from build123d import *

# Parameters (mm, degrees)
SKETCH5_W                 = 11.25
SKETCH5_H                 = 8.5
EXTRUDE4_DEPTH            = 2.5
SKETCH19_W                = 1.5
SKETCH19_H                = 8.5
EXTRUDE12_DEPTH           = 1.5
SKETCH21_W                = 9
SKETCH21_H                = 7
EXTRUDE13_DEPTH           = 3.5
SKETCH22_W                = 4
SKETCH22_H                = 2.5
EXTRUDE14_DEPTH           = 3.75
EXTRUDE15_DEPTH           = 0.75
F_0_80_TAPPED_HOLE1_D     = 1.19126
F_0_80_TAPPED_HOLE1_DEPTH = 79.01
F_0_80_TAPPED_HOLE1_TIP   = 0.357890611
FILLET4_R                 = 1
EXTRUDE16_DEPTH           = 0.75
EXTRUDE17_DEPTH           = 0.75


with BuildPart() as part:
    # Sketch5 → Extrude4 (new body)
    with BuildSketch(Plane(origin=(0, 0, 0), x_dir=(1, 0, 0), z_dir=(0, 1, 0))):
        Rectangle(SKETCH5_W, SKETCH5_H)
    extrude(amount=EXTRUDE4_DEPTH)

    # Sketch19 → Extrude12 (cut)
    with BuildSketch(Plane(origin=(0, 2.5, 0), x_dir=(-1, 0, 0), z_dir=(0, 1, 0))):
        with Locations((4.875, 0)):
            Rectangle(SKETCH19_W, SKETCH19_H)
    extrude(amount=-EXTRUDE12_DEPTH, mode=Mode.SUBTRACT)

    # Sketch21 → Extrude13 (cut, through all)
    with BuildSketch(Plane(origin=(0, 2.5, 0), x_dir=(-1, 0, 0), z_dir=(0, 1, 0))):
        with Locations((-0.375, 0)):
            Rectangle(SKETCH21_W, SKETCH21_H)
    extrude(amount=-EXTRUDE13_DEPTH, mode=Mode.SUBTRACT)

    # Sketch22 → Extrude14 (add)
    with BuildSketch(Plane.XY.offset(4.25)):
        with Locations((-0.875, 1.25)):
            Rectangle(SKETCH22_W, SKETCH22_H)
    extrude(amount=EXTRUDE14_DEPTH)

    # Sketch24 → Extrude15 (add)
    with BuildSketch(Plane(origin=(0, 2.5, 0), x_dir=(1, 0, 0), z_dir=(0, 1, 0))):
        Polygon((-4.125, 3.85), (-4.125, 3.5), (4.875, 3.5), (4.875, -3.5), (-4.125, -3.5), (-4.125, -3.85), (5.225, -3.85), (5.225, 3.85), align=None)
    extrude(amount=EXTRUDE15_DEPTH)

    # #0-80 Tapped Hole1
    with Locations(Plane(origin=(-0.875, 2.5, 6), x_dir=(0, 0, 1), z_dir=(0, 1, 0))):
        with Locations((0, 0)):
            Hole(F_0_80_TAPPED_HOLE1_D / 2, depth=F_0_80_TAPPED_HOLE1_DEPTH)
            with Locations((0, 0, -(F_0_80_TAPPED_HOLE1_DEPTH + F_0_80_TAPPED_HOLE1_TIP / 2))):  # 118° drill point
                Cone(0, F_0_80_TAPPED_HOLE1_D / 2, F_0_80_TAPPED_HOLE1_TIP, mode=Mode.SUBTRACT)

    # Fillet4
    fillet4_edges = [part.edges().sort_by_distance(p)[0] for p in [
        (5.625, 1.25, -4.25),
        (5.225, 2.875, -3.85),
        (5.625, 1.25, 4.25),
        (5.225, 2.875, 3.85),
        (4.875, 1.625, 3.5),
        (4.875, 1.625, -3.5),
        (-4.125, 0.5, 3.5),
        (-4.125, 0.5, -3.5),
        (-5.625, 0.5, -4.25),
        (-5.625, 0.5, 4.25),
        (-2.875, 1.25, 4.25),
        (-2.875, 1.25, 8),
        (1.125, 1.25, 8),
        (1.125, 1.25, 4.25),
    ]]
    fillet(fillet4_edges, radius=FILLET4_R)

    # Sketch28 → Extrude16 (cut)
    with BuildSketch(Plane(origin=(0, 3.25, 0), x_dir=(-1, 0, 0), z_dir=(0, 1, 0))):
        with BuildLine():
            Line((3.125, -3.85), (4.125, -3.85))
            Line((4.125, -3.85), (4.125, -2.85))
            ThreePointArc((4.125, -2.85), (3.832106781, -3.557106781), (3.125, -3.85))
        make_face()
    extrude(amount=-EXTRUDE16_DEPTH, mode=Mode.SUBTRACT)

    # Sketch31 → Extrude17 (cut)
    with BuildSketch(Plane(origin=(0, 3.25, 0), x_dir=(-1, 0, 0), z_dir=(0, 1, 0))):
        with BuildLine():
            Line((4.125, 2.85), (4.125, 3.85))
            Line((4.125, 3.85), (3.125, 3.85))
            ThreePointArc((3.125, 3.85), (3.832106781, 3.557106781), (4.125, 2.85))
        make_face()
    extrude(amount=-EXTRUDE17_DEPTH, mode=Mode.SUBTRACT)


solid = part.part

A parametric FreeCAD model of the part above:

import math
import FreeCAD as App
import Part
import Sketcher
from FreeCAD import Vector


def edges_at(feature, points):
    """Names of the edges that pass closest to the given points."""
    edges = feature.Shape.Edges
    near = lambda p: min(range(len(edges)), key=lambda i: edges[i].distToShape(Part.Vertex(*p))[0])
    return sorted({f"Edge{near(p) + 1}" for p in points})

doc = App.newDocument("Part")
body = doc.addObject("PartDesign::Body", "Body")

# Sketch on XZ plane
sketch1 = body.newObject("Sketcher::SketchObject", "Sketch")
sketch1.AttachmentSupport = (doc.getObject("XZ_Plane"), [""])
sketch1.MapMode = "FlatFace"
sketch1.addGeometry(Part.LineSegment(Vector(-6, -4, 0), Vector(-6, 4, 0)), False)
sketch1.addGeometry(Part.LineSegment(Vector(-6, 4, 0), Vector(6, 4, 0)), False)
sketch1.addGeometry(Part.LineSegment(Vector(6, 4, 0), Vector(6, -4, 0)), False)
sketch1.addGeometry(Part.LineSegment(Vector(6, -4, 0), Vector(-6, -4, 0)), False)
sketch1.addConstraint(Sketcher.Constraint("Coincident", 0, 2, 1, 1))
sketch1.addConstraint(Sketcher.Constraint("Coincident", 1, 2, 2, 1))
sketch1.addConstraint(Sketcher.Constraint("Coincident", 2, 2, 3, 1))
sketch1.addConstraint(Sketcher.Constraint("Coincident", 3, 2, 0, 1))
sketch1.addConstraint(Sketcher.Constraint("Vertical", 0))
sketch1.addConstraint(Sketcher.Constraint("Horizontal", 1))
sketch1.addConstraint(Sketcher.Constraint("Vertical", 2))
sketch1.addConstraint(Sketcher.Constraint("Horizontal", 3))
sketch1.addConstraint(Sketcher.Constraint("Symmetric", 0, 2, 2, 2, -1, 1))
sketch1.addConstraint(Sketcher.Constraint("DistanceY", 0, 1, 0, 2, 8.5))
sketch1.addConstraint(Sketcher.Constraint("DistanceX", 1, 1, 1, 2, 11.25))
pad1 = body.newObject("PartDesign::Pad", "Pad")
pad1.Profile = sketch1
pad1.Length = 2.5
pad1.Reversed = True

# Sketch on XZ plane
sketch2 = body.newObject("Sketcher::SketchObject", "Sketch001")
sketch2.AttachmentSupport = (doc.getObject("XZ_Plane"), [""])
sketch2.MapMode = "FlatFace"
sketch2.AttachmentOffset = App.Placement(Vector(0, 0, -2.5), App.Rotation())
sketch2.addGeometry(Part.LineSegment(Vector(-4.1, 4.2, 0), Vector(-4.1, -4.2, 0)), False)
sketch2.addGeometry(Part.LineSegment(Vector(-4.1, -4.2, 0), Vector(-5.6, -4.2, 0)), False)
sketch2.addGeometry(Part.LineSegment(Vector(-5.6, -4.2, 0), Vector(-5.6, 4.2, 0)), False)
sketch2.addGeometry(Part.LineSegment(Vector(-5.6, 4.2, 0), Vector(-4.1, 4.2, 0)), False)
sketch2.addConstraint(Sketcher.Constraint("Coincident", 0, 2, 1, 1))
sketch2.addConstraint(Sketcher.Constraint("Coincident", 1, 2, 2, 1))
sketch2.addConstraint(Sketcher.Constraint("Coincident", 2, 2, 3, 1))
sketch2.addConstraint(Sketcher.Constraint("Coincident", 3, 2, 0, 1))
sketch2.addConstraint(Sketcher.Constraint("Vertical", 0))
sketch2.addConstraint(Sketcher.Constraint("Horizontal", 1))
sketch2.addConstraint(Sketcher.Constraint("Vertical", 2))
sketch2.addConstraint(Sketcher.Constraint("Horizontal", 3))
sketch2.addConstraint(Sketcher.Constraint("DistanceX", 1, 2, 1, 1, 1.5))
sketch2.addConstraint(Sketcher.Constraint("DistanceY", 0, 2, 0, 1, 8.5))
sketch2.addConstraint(Sketcher.Constraint("DistanceY", 0, 2, -1, 1, 4.25))
sketch2.addConstraint(Sketcher.Constraint("DistanceX", 0, 2, -1, 1, 4.125))
pocket1 = body.newObject("PartDesign::Pocket", "Pocket")
pocket1.Profile = sketch2
pocket1.Length = 1.5
pocket1.Reversed = True

# Sketch on XZ plane
sketch3 = body.newObject("Sketcher::SketchObject", "Sketch002")
sketch3.AttachmentSupport = (doc.getObject("XZ_Plane"), [""])
sketch3.MapMode = "FlatFace"
sketch3.AttachmentOffset = App.Placement(Vector(0, 0, -2.5), App.Rotation())
sketch3.addGeometry(Part.LineSegment(Vector(5, 4, 0), Vector(5, -4, 0)), False)
sketch3.addGeometry(Part.LineSegment(Vector(5, -4, 0), Vector(-4, -4, 0)), False)
sketch3.addGeometry(Part.LineSegment(Vector(-4, -4, 0), Vector(-4, 4, 0)), False)
sketch3.addGeometry(Part.LineSegment(Vector(-4, 4, 0), Vector(5, 4, 0)), False)
sketch3.addConstraint(Sketcher.Constraint("Coincident", 0, 2, 1, 1))
sketch3.addConstraint(Sketcher.Constraint("Coincident", 1, 2, 2, 1))
sketch3.addConstraint(Sketcher.Constraint("Coincident", 2, 2, 3, 1))
sketch3.addConstraint(Sketcher.Constraint("Coincident", 3, 2, 0, 1))
sketch3.addConstraint(Sketcher.Constraint("Vertical", 0))
sketch3.addConstraint(Sketcher.Constraint("Horizontal", 1))
sketch3.addConstraint(Sketcher.Constraint("Vertical", 2))
sketch3.addConstraint(Sketcher.Constraint("Horizontal", 3))
sketch3.addConstraint(Sketcher.Constraint("DistanceX", 1, 2, 1, 1, 9.0))
sketch3.addConstraint(Sketcher.Constraint("DistanceY", 0, 2, 0, 1, 7.0))
sketch3.addConstraint(Sketcher.Constraint("DistanceY", 0, 2, -1, 1, 3.5))
sketch3.addConstraint(Sketcher.Constraint("DistanceX", -1, 1, 0, 2, 4.875))
pocket2 = body.newObject("PartDesign::Pocket", "Pocket001")
pocket2.Profile = sketch3
pocket2.Type = "ThroughAll"
pocket2.Reversed = True

# Sketch on XY plane
sketch4 = body.newObject("Sketcher::SketchObject", "Sketch003")
sketch4.AttachmentSupport = (doc.getObject("XY_Plane"), [""])
sketch4.MapMode = "FlatFace"
sketch4.AttachmentOffset = App.Placement(Vector(0, 0, 4.25), App.Rotation())
sketch4.addGeometry(Part.LineSegment(Vector(-2.9, 2.5, 0), Vector(-2.9, 0, 0)), False)
sketch4.addGeometry(Part.LineSegment(Vector(-2.9, 0, 0), Vector(1.1, 0, 0)), False)
sketch4.addGeometry(Part.LineSegment(Vector(1.1, 0, 0), Vector(1.1, 2.5, 0)), False)
sketch4.addGeometry(Part.LineSegment(Vector(1.1, 2.5, 0), Vector(-2.9, 2.5, 0)), False)
sketch4.addConstraint(Sketcher.Constraint("Coincident", 0, 2, 1, 1))
sketch4.addConstraint(Sketcher.Constraint("Coincident", 1, 2, 2, 1))
sketch4.addConstraint(Sketcher.Constraint("Coincident", 2, 2, 3, 1))
sketch4.addConstraint(Sketcher.Constraint("Coincident", 3, 2, 0, 1))
sketch4.addConstraint(Sketcher.Constraint("Vertical", 0))
sketch4.addConstraint(Sketcher.Constraint("Horizontal", 1))
sketch4.addConstraint(Sketcher.Constraint("Vertical", 2))
sketch4.addConstraint(Sketcher.Constraint("Horizontal", 3))
sketch4.addConstraint(Sketcher.Constraint("PointOnObject", 0, 2, -1))
sketch4.addConstraint(Sketcher.Constraint("DistanceX", 1, 1, 1, 2, 4.0))
sketch4.addConstraint(Sketcher.Constraint("DistanceY", 0, 2, 0, 1, 2.5))
sketch4.addConstraint(Sketcher.Constraint("DistanceX", 0, 2, -1, 1, 2.875))
pad2 = body.newObject("PartDesign::Pad", "Pad001")
pad2.Profile = sketch4
pad2.Length = 3.75

# Sketch on XZ plane
sketch5 = body.newObject("Sketcher::SketchObject", "Sketch004")
sketch5.AttachmentSupport = (doc.getObject("XZ_Plane"), [""])
sketch5.MapMode = "FlatFace"
sketch5.AttachmentOffset = App.Placement(Vector(0, 0, -2.5), App.Rotation())
sketch5.addGeometry(Part.LineSegment(Vector(-4.12, -3.85, 0), Vector(-4.12, -3.5, 0)), False)
sketch5.addGeometry(Part.LineSegment(Vector(-4.12, -3.5, 0), Vector(4.88, -3.5, 0)), False)
sketch5.addGeometry(Part.LineSegment(Vector(4.88, -3.5, 0), Vector(4.88, 3.5, 0)), False)
sketch5.addGeometry(Part.LineSegment(Vector(4.88, 3.5, 0), Vector(-4.12, 3.5, 0)), False)
sketch5.addGeometry(Part.LineSegment(Vector(-4.12, 3.5, 0), Vector(-4.12, 3.85, 0)), False)
sketch5.addGeometry(Part.LineSegment(Vector(-4.12, 3.85, 0), Vector(5.22, 3.85, 0)), False)
sketch5.addGeometry(Part.LineSegment(Vector(5.22, 3.85, 0), Vector(5.22, -3.85, 0)), False)
sketch5.addGeometry(Part.LineSegment(Vector(5.22, -3.85, 0), Vector(-4.12, -3.85, 0)), False)
sketch5.addConstraint(Sketcher.Constraint("Coincident", 0, 2, 1, 1))
sketch5.addConstraint(Sketcher.Constraint("Coincident", 1, 2, 2, 1))
sketch5.addConstraint(Sketcher.Constraint("Coincident", 2, 2, 3, 1))
sketch5.addConstraint(Sketcher.Constraint("Coincident", 3, 2, 4, 1))
sketch5.addConstraint(Sketcher.Constraint("Coincident", 4, 2, 5, 1))
sketch5.addConstraint(Sketcher.Constraint("Coincident", 5, 2, 6, 1))
sketch5.addConstraint(Sketcher.Constraint("Coincident", 6, 2, 7, 1))
sketch5.addConstraint(Sketcher.Constraint("Coincident", 7, 2, 0, 1))
sketch5.addConstraint(Sketcher.Constraint("Vertical", 0))
sketch5.addConstraint(Sketcher.Constraint("Horizontal", 1))
sketch5.addConstraint(Sketcher.Constraint("Vertical", 2))
sketch5.addConstraint(Sketcher.Constraint("Horizontal", 3))
sketch5.addConstraint(Sketcher.Constraint("Vertical", 4))
sketch5.addConstraint(Sketcher.Constraint("Horizontal", 5))
sketch5.addConstraint(Sketcher.Constraint("Vertical", 6))
sketch5.addConstraint(Sketcher.Constraint("Horizontal", 7))
sketch5.addConstraint(Sketcher.Constraint("Symmetric", 0, 2, 3, 2, -1))
sketch5.addConstraint(Sketcher.Constraint("Equal", 0, 4))
sketch5.addConstraint(Sketcher.Constraint("DistanceX", 1, 1, 1, 2, 9.0))
sketch5.addConstraint(Sketcher.Constraint("DistanceY", 2, 1, 2, 2, 7.0))
sketch5.addConstraint(Sketcher.Constraint("DistanceY", 6, 2, 6, 1, 7.7))
sketch5.addConstraint(Sketcher.Constraint("DistanceX", 5, 1, 5, 2, 9.35))
sketch5.addConstraint(Sketcher.Constraint("DistanceX", 0, 2, -1, 1, 4.125))
pad3 = body.newObject("PartDesign::Pad", "Pad002")
pad3.Profile = sketch5
pad3.Length = 0.75
pad3.Reversed = True

# Sketch on XZ plane
sketch6 = body.newObject("Sketcher::SketchObject", "Sketch005")
sketch6.AttachmentSupport = (doc.getObject("XZ_Plane"), [""])
sketch6.MapMode = "FlatFace"
sketch6.AttachmentOffset = App.Placement(Vector(0, 0, -2.5), App.Rotation())
sketch6.addGeometry(Part.Circle(Vector(-0.9, 6, 0), Vector(0, 0, 1), 0.6), False)
sketch6.addConstraint(Sketcher.Constraint("DistanceY", -1, 1, 0, 3, 6.0))
sketch6.addConstraint(Sketcher.Constraint("Diameter", 0, 1.19126))
sketch6.addConstraint(Sketcher.Constraint("DistanceX", 0, 3, -1, 1, 0.875))
doc.recompute()
hole = body.newObject("PartDesign::Hole", "Hole")
hole.Profile = sketch6
hole.ThreadType = "None"
hole.Diameter = 1.19126
hole.DepthType = "Dimension"
hole.Depth = 79.01
hole.DrillPoint = "Angled"
hole.DrillPointAngle = 118
hole.Reversed = True
doc.recompute()

fillet = body.newObject("PartDesign::Fillet", "Fillet")
fillet.Base = (hole, edges_at(hole, [
    (5.625, 1.25, -4.25),
    (5.225, 2.875, -3.85),
    (5.625, 1.25, 4.25),
    (5.225, 2.875, 3.85),
    (4.875, 1.625, 3.5),
    (4.875, 1.625, -3.5),
    (-4.125, 0.5, 3.5),
    (-4.125, 0.5, -3.5),
    (-5.625, 0.5, -4.25),
    (-5.625, 0.5, 4.25),
    (-2.875, 1.25, 4.25),
    (-2.875, 1.25, 8),
    (1.125, 1.25, 8),
    (1.125, 1.25, 4.25),
]))
fillet.Radius = 1

# Sketch on XZ plane
sketch7 = body.newObject("Sketcher::SketchObject", "Sketch006")
sketch7.AttachmentSupport = (doc.getObject("XZ_Plane"), [""])
sketch7.MapMode = "FlatFace"
sketch7.AttachmentOffset = App.Placement(Vector(0, 0, -3.25), App.Rotation())
sketch7.addGeometry(Part.LineSegment(Vector(-3.1, -3.9, 0), Vector(-4.1, -3.9, 0)), False)
sketch7.addGeometry(Part.LineSegment(Vector(-4.1, -3.9, 0), Vector(-4.1, -2.9, 0)), False)
sketch7.addGeometry(Part.ArcOfCircle(Part.Circle(Vector(-3.1, -2.8, 0), Vector(0, 0, 1), 1), math.radians(-180), math.radians(-90)), False)
sketch7.addConstraint(Sketcher.Constraint("Coincident", 0, 2, 1, 1))
sketch7.addConstraint(Sketcher.Constraint("Tangent", 1, 2, 2, 1))
sketch7.addConstraint(Sketcher.Constraint("Tangent", 2, 2, 0, 1))
sketch7.addConstraint(Sketcher.Constraint("Horizontal", 0))
sketch7.addConstraint(Sketcher.Constraint("Vertical", 1))
sketch7.addConstraint(Sketcher.Constraint("Radius", 2, 1.0))
sketch7.addConstraint(Sketcher.Constraint("DistanceY", 2, 3, -1, 1, 2.85))
sketch7.addConstraint(Sketcher.Constraint("DistanceX", 2, 3, -1, 1, 3.125))
pocket3 = body.newObject("PartDesign::Pocket", "Pocket002")
pocket3.Profile = sketch7
pocket3.Length = 0.75
pocket3.Reversed = True

# Sketch on XZ plane
sketch8 = body.newObject("Sketcher::SketchObject", "Sketch007")
sketch8.AttachmentSupport = (doc.getObject("XZ_Plane"), [""])
sketch8.MapMode = "FlatFace"
sketch8.AttachmentOffset = App.Placement(Vector(0, 0, -3.25), App.Rotation())
sketch8.addGeometry(Part.LineSegment(Vector(-4.1, 2.9, 0), Vector(-4.1, 3.9, 0)), False)
sketch8.addGeometry(Part.LineSegment(Vector(-4.1, 3.9, 0), Vector(-3.1, 3.9, 0)), False)
sketch8.addGeometry(Part.ArcOfCircle(Part.Circle(Vector(-3.1, 2.8, 0), Vector(0, 0, 1), 1), math.radians(90), math.radians(180)), False)
sketch8.addConstraint(Sketcher.Constraint("Coincident", 0, 2, 1, 1))
sketch8.addConstraint(Sketcher.Constraint("Tangent", 1, 2, 2, 1))
sketch8.addConstraint(Sketcher.Constraint("Tangent", 2, 2, 0, 1))
sketch8.addConstraint(Sketcher.Constraint("Vertical", 0))
sketch8.addConstraint(Sketcher.Constraint("Horizontal", 1))
sketch8.addConstraint(Sketcher.Constraint("Radius", 2, 1.0))
sketch8.addConstraint(Sketcher.Constraint("DistanceY", -1, 1, 2, 3, 2.85))
sketch8.addConstraint(Sketcher.Constraint("DistanceX", 2, 3, -1, 1, 3.125))
pocket4 = body.newObject("PartDesign::Pocket", "Pocket003")
pocket4.Profile = sketch8
pocket4.Length = 0.75
pocket4.Reversed = True

doc.recompute()
